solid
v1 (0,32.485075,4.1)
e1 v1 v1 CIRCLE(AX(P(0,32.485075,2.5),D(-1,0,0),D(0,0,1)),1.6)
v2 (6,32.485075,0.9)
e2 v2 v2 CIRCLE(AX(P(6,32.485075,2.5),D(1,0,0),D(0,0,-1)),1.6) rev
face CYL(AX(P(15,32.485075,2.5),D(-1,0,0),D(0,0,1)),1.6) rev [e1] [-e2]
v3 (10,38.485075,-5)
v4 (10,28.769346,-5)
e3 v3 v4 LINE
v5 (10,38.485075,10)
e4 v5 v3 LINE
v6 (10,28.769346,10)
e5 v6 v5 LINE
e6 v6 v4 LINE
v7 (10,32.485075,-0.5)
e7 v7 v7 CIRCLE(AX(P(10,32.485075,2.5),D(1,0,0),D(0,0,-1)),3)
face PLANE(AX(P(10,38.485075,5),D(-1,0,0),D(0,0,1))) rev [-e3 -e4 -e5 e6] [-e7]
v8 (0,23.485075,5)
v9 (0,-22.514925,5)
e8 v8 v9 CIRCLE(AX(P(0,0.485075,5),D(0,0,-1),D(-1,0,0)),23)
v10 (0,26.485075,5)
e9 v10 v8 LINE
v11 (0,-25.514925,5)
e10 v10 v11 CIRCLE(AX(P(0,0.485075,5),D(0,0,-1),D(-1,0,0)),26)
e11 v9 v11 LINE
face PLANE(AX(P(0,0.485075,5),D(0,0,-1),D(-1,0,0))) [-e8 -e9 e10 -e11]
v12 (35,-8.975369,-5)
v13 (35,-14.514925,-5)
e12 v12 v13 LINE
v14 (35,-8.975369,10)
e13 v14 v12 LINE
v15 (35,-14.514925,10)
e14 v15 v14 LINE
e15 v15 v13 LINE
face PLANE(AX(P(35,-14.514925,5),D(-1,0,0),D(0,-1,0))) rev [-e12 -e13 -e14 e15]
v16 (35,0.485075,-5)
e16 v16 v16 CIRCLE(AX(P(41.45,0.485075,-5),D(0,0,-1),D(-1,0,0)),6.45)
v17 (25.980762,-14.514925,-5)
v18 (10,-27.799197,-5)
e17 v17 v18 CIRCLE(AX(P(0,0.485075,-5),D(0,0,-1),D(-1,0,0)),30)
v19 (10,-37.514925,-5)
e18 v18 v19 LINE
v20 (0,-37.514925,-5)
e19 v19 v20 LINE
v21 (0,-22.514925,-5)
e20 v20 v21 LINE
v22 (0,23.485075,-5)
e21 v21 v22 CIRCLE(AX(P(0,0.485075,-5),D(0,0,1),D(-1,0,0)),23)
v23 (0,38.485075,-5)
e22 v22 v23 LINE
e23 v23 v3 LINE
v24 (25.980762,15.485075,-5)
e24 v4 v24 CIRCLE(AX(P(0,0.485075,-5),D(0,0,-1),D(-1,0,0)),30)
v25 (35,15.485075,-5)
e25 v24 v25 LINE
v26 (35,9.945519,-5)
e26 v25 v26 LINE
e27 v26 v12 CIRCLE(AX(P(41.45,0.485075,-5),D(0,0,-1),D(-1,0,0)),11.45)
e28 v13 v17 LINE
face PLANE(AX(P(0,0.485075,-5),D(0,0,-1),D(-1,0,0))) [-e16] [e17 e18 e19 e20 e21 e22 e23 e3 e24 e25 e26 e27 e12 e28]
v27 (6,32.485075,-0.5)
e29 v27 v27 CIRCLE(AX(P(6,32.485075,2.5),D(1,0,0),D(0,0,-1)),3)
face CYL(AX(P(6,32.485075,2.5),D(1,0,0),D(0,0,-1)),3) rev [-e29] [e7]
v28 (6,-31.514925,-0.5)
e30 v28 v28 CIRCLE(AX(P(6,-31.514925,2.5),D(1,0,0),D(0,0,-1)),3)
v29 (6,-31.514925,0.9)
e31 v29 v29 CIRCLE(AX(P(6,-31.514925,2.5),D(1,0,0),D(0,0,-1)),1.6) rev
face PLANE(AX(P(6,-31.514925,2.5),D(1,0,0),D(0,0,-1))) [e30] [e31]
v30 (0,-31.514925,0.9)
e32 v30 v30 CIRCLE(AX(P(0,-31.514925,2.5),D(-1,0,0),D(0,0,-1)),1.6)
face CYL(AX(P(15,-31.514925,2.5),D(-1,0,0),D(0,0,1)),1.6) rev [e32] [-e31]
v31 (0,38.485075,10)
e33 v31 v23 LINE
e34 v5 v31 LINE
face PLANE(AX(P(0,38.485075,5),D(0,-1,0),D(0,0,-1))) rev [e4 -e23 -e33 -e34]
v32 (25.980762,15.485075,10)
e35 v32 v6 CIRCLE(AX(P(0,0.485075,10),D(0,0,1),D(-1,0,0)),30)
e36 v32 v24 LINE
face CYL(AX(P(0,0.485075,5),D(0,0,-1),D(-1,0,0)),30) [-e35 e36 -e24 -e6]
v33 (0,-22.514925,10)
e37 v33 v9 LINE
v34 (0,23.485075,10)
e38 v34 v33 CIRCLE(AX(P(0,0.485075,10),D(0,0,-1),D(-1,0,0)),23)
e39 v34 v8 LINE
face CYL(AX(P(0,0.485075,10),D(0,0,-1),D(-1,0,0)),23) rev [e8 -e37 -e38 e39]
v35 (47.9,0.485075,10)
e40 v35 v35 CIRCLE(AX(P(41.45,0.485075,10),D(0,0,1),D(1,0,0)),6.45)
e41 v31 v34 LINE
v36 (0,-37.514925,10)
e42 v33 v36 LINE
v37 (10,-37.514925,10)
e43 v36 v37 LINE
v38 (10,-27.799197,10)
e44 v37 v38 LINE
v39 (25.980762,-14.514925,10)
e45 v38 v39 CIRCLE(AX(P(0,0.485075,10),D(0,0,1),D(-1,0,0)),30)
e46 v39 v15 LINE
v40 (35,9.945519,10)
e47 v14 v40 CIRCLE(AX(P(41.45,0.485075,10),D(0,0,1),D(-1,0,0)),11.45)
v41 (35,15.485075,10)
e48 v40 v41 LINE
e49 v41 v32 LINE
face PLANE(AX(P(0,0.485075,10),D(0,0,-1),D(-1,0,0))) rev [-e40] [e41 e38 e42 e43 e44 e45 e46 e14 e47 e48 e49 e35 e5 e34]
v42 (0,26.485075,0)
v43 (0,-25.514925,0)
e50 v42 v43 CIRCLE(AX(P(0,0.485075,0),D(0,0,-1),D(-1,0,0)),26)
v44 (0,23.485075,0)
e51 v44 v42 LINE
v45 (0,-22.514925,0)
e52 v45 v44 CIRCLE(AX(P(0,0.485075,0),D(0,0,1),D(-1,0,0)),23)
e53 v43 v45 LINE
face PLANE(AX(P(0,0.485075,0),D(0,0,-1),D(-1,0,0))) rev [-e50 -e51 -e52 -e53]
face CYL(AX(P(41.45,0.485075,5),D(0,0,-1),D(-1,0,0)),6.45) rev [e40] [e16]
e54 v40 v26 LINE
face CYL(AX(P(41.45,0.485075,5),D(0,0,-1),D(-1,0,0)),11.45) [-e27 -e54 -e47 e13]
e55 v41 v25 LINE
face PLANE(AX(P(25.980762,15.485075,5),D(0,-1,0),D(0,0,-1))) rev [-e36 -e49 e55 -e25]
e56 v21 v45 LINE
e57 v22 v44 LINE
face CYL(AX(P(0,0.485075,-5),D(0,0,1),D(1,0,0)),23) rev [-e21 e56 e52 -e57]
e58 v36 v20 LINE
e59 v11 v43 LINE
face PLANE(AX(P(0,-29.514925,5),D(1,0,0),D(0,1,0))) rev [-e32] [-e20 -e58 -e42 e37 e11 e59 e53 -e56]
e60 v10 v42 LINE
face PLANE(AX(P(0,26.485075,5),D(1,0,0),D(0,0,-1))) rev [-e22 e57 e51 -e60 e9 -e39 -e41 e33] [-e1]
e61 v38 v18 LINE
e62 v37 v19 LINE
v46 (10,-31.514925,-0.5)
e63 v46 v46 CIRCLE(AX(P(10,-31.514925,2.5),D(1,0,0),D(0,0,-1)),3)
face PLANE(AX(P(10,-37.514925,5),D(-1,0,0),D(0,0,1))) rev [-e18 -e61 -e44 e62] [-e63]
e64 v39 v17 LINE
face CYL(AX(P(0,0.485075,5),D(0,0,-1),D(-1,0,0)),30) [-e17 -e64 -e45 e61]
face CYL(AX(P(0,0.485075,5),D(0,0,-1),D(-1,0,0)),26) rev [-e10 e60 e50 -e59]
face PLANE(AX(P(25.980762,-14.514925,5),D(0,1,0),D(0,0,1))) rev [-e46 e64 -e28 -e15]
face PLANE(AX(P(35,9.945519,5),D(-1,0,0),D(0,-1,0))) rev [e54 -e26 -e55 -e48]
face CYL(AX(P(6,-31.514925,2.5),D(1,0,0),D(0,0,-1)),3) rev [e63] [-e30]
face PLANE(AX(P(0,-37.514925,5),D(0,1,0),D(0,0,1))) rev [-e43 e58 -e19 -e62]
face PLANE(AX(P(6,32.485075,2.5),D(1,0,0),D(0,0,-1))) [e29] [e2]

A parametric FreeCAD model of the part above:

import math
import FreeCAD as App
import Part
import Sketcher

doc = App.newDocument("Part")
body = doc.addObject("PartDesign::Body", "Body")

# Sketch on XY plane
sketch1 = body.newObject("Sketcher::SketchObject", "Sketch")
sketch1.AttachmentSupport = (doc.getObject("XY_Plane"), [""])
sketch1.MapMode = "FlatFace"
sketch1.addGeometry([
    Part.LineSegment(App.Vector(0, 38.485075, 0), App.Vector(0, 26.485075, 0)),  # 0
    Part.ArcOfCircle(Part.Circle(App.Vector(0, 0.485075, 0), App.Vector(0, 0, 1), 26), math.radians(-90), math.radians(90)),  # 1
    Part.LineSegment(App.Vector(0, -25.514925, 0), App.Vector(0, -37.514925, 0)),  # 2
    Part.LineSegment(App.Vector(0, -37.514925, 0), App.Vector(10, -37.514925, 0)),  # 3
    Part.LineSegment(App.Vector(10, -37.514925, 0), App.Vector(10, -27.799197, 0)),  # 4
    Part.ArcOfCircle(Part.Circle(App.Vector(0, 0.485075, 0), App.Vector(0, 0, 1), 30), math.radians(-70.528779), math.radians(-30)),  # 5
    Part.LineSegment(App.Vector(25.980762, -14.514925, 0), App.Vector(35, -14.514925, 0)),  # 6
    Part.LineSegment(App.Vector(35, -14.514925, 0), App.Vector(35, -8.975369, 0)),  # 7
    Part.ArcOfCircle(Part.Circle(App.Vector(41.45, 0.485075, 0), App.Vector(0, 0, 1), 11.45), math.radians(-124.285625), math.radians(124.285625)),  # 8
    Part.LineSegment(App.Vector(35, 9.945519, 0), App.Vector(35, 15.485075, 0)),  # 9
    Part.LineSegment(App.Vector(35, 15.485075, 0), App.Vector(25.980762, 15.485075, 0)),  # 10
    Part.ArcOfCircle(Part.Circle(App.Vector(0, 0.485075, 0), App.Vector(0, 0, 1), 30), math.radians(30), math.radians(70.528779)),  # 11
    Part.LineSegment(App.Vector(10, 28.769346, 0), App.Vector(10, 38.485075, 0)),  # 12
    Part.LineSegment(App.Vector(10, 38.485075, 0), App.Vector(0, 38.485075, 0)),  # 13
    Part.Circle(App.Vector(41.45, 0.485075, 0), App.Vector(0, 0, 1), 6.45),  # 14
], False)
sketch1.addConstraint([
    Sketcher.Constraint("Coincident", 0, 2, 1, 2),
    Sketcher.Constraint("Coincident", 1, 1, 2, 1),
    Sketcher.Constraint("Coincident", 2, 2, 3, 1),
    Sketcher.Constraint("Coincident", 3, 2, 4, 1),
    Sketcher.Constraint("Coincident", 4, 2, 5, 1),
    Sketcher.Constraint("Coincident", 5, 2, 6, 1),
    Sketcher.Constraint("Coincident", 6, 2, 7, 1),
    Sketcher.Constraint("Coincident", 7, 2, 8, 1),
    Sketcher.Constraint("Coincident", 8, 2, 9, 1),
    Sketcher.Constraint("Coincident", 9, 2, 10, 1),
    Sketcher.Constraint("Coincident", 10, 2, 11, 1),
    Sketcher.Constraint("Coincident", 11, 2, 12, 1),
    Sketcher.Constraint("Coincident", 12, 2, 13, 1),
    Sketcher.Constraint("Coincident", 13, 2, 0, 1),
    Sketcher.Constraint("Vertical", 0),
    Sketcher.Constraint("Vertical", 2),
    Sketcher.Constraint("Horizontal", 3),
    Sketcher.Constraint("Vertical", 4),
    Sketcher.Constraint("Horizontal", 6),
    Sketcher.Constraint("Vertical", 7),
    Sketcher.Constraint("Vertical", 9),
    Sketcher.Constraint("Horizontal", 10),
    Sketcher.Constraint("Vertical", 12),
    Sketcher.Constraint("Horizontal", 13),
    Sketcher.Constraint("Coincident", 5, 3, 1, 3),
    Sketcher.Constraint("Coincident", 11, 3, 1, 3),
    Sketcher.Constraint("Coincident", 14, 3, 8, 3),
    Sketcher.Constraint("Equal", 5, 11),
    Sketcher.Constraint("PointOnObject", 1, 3, -2),
    Sketcher.Constraint("PointOnObject", 0, 2, -2),
    Sketcher.Constraint("PointOnObject", 1, 1, -2),
    Sketcher.Constraint("Horizontal", 5, 3, 8, 3),
    Sketcher.Constraint("Vertical", 7, 2, 8, 2),
    Sketcher.Constraint("Vertical", 5, 2, 10, 2),
    Sketcher.Constraint("Vertical", 4, 2, 11, 2),
    Sketcher.Constraint("Equal", 0, 2),
    Sketcher.Constraint("Radius", 1, 26.0),
    Sketcher.Constraint("Radius", 5, 30.0),
    Sketcher.Constraint("Diameter", 14, 12.9),
    Sketcher.Constraint("DistanceX", 3, 1, 3, 2, 10.0),
    Sketcher.Constraint("DistanceY", 0, 2, 0, 1, 12.0),
    Sketcher.Constraint("Radius", 8, 11.45),
    Sketcher.Constraint("DistanceX", -1, 1, 6, 2, 35.0),
    Sketcher.Constraint("DistanceY", 5, 2, 8, 3, 15.0),
    Sketcher.Constraint("DistanceX", -1, 1, 8, 3, 41.45),
    Sketcher.Constraint("DistanceY", 7, 2, -1, 1, 8.975369),
])
pad1 = body.newObject("PartDesign::Pad", "Pad")
pad1.Profile = sketch1
pad1.Length = 5

# Sketch on XY plane
sketch2 = body.newObject("Sketcher::SketchObject", "Sketch001")
sketch2.AttachmentSupport = (doc.getObject("XY_Plane"), [""])
sketch2.MapMode = "FlatFace"
sketch2.AttachmentOffset = App.Placement(App.Vector(0, 0, 5), App.Rotation())
sketch2.addGeometry([
    Part.ArcOfCircle(Part.Circle(App.Vector(0, 0.485075, 0), App.Vector(0, 0, 1), 23), math.radians(-90), math.radians(90)),  # 0
    Part.LineSegment(App.Vector(0, -22.514925, 0), App.Vector(0, -37.514925, 0)),  # 1
    Part.LineSegment(App.Vector(0, -37.514925, 0), App.Vector(10, -37.514925, 0)),  # 2
    Part.LineSegment(App.Vector(10, -37.514925, 0), App.Vector(10, -27.799197, 0)),  # 3
    Part.ArcOfCircle(Part.Circle(App.Vector(0, 0.485075, 0), App.Vector(0, 0, 1), 30), math.radians(-70.528779), math.radians(-30)),  # 4
    Part.LineSegment(App.Vector(25.980762, -14.514925, 0), App.Vector(35, -14.514925, 0)),  # 5
    Part.LineSegment(App.Vector(35, -14.514925, 0), App.Vector(35, -8.975369, 0)),  # 6
    Part.ArcOfCircle(Part.Circle(App.Vector(41.45, 0.485075, 0), App.Vector(0, 0, 1), 11.45), math.radians(-124.285625), math.radians(124.285625)),  # 7
    Part.LineSegment(App.Vector(35, 9.945519, 0), App.Vector(35, 15.485075, 0)),  # 8
    Part.LineSegment(App.Vector(35, 15.485075, 0), App.Vector(25.980762, 15.485075, 0)),  # 9
    Part.ArcOfCircle(Part.Circle(App.Vector(0, 0.485075, 0), App.Vector(0, 0, 1), 30), math.radians(30), math.radians(70.528779)),  # 10
    Part.LineSegment(App.Vector(10, 28.769346, 0), App.Vector(10, 38.485075, 0)),  # 11
    Part.LineSegment(App.Vector(10, 38.485075, 0), App.Vector(0, 38.485075, 0)),  # 12
    Part.LineSegment(App.Vector(0, 38.485075, 0), App.Vector(0, 23.485075, 0)),  # 13
    Part.Circle(App.Vector(41.45, 0.485075, 0), App.Vector(0, 0, 1), 6.45),  # 14
], False)
sketch2.addConstraint([
    Sketcher.Constraint("Coincident", 0, 1, 1, 1),
    Sketcher.Constraint("Coincident", 1, 2, 2, 1),
    Sketcher.Constraint("Coincident", 2, 2, 3, 1),
    Sketcher.Constraint("Coincident", 3, 2, 4, 1),
    Sketcher.Constraint("Coincident", 4, 2, 5, 1),
    Sketcher.Constraint("Coincident", 5, 2, 6, 1),
    Sketcher.Constraint("Coincident", 6, 2, 7, 1),
    Sketcher.Constraint("Coincident", 7, 2, 8, 1),
    Sketcher.Constraint("Coincident", 8, 2, 9, 1),
    Sketcher.Constraint("Coincident", 9, 2, 10, 1),
    Sketcher.Constraint("Coincident", 10, 2, 11, 1),
    Sketcher.Constraint("Coincident", 11, 2, 12, 1),
    Sketcher.Constraint("Coincident", 12, 2, 13, 1),
    Sketcher.Constraint("Coincident", 13, 2, 0, 2),
    Sketcher.Constraint("Vertical", 1),
    Sketcher.Constraint("Horizontal", 2),
    Sketcher.Constraint("Vertical", 3),
    Sketcher.Constraint("Horizontal", 5),
    Sketcher.Constraint("Vertical", 6),
    Sketcher.Constraint("Vertical", 8),
    Sketcher.Constraint("Horizontal", 9),
    Sketcher.Constraint("Vertical", 11),
    Sketcher.Constraint("Horizontal", 12),
    Sketcher.Constraint("Vertical", 13),
    Sketcher.Constraint("Coincident", 4, 3, 0, 3),
    Sketcher.Constraint("Coincident", 10, 3, 0, 3),
    Sketcher.Constraint("Coincident", 14, 3, 7, 3),
    Sketcher.Constraint("Equal", 4, 10),
    Sketcher.Constraint("PointOnObject", 0, 3, -2),
    Sketcher.Constraint("PointOnObject", 0, 1, -2),
    Sketcher.Constraint("PointOnObject", 12, 2, -2),
    Sketcher.Constraint("Horizontal", 4, 3, 7, 3),
    Sketcher.Constraint("Vertical", 6, 2, 7, 2),
    Sketcher.Constraint("Vertical", 4, 2, 9, 2),
    Sketcher.Constraint("Vertical", 3, 2, 10, 2),
    Sketcher.Constraint("Equal", 3, 11),
    Sketcher.Constraint("Radius", 0, 23.0),
    Sketcher.Constraint("Radius", 4, 30.0),
    Sketcher.Constraint("Diameter", 14, 12.9),
    Sketcher.Constraint("DistanceX", 2, 1, 2, 2, 10.0),
    Sketcher.Constraint("DistanceY", 1, 2, 1, 1, 15.0),
    Sketcher.Constraint("Radius", 7, 11.45),
    Sketcher.Constraint("DistanceX", -1, 1, 5, 2, 35.0),
    Sketcher.Constraint("DistanceY", 4, 2, 7, 3, 15.0),
    Sketcher.Constraint("DistanceX", -1, 1, 7, 3, 41.45),
    Sketcher.Constraint("DistanceY", 6, 2, -1, 1, 8.975369),
])
pad2 = body.newObject("PartDesign::Pad", "Pad001")
pad2.Profile = sketch2
pad2.Length = 5

# Sketch on XY plane
sketch3 = body.newObject("Sketcher::SketchObject", "Sketch002")
sketch3.AttachmentSupport = (doc.getObject("XY_Plane"), [""])
sketch3.MapMode = "FlatFace"
sketch3.AttachmentOffset = App.Placement(App.Vector(0, 0, -5), App.Rotation())
sketch3.addGeometry([
    Part.LineSegment(App.Vector(0, -37.514925, 0), App.Vector(0, -22.514925, 0)),  # 0
    Part.ArcOfCircle(Part.Circle(App.Vector(0, 0.485075, 0), App.Vector(0, 0, 1), 23), math.radians(-90), math.radians(90)),  # 1
    Part.LineSegment(App.Vector(0, 23.485075, 0), App.Vector(0, 38.485075, 0)),  # 2
    Part.LineSegment(App.Vector(0, 38.485075, 0), App.Vector(10, 38.485075, 0)),  # 3
    Part.LineSegment(App.Vector(10, 38.485075, 0), App.Vector(10, 28.769346, 0)),  # 4
    Part.ArcOfCircle(Part.Circle(App.Vector(0, 0.485075, 0), App.Vector(0, 0, 1), 30), math.radians(30), math.radians(70.528779)),  # 5
    Part.LineSegment(App.Vector(25.980762, 15.485075, 0), App.Vector(35, 15.485075, 0)),  # 6
    Part.LineSegment(App.Vector(35, 15.485075, 0), App.Vector(35, 9.945519, 0)),  # 7
    Part.ArcOfCircle(Part.Circle(App.Vector(41.45, 0.485075, 0), App.Vector(0, 0, 1), 11.45), math.radians(-124.285625), math.radians(124.285625)),  # 8
    Part.LineSegment(App.Vector(35, -8.975369, 0), App.Vector(35, -14.514925, 0)),  # 9
    Part.LineSegment(App.Vector(35, -14.514925, 0), App.Vector(25.980762, -14.514925, 0)),  # 10
    Part.ArcOfCircle(Part.Circle(App.Vector(0, 0.485075, 0), App.Vector(0, 0, 1), 30), math.radians(-70.528779), math.radians(-30)),  # 11
    Part.LineSegment(App.Vector(10, -27.799197, 0), App.Vector(10, -37.514925, 0)),  # 12
    Part.LineSegment(App.Vector(10, -37.514925, 0), App.Vector(0, -37.514925, 0)),  # 13
    Part.Circle(App.Vector(41.45, 0.485075, 0), App.Vector(0, 0, 1), 6.45),  # 14
], False)
sketch3.addConstraint([
    Sketcher.Constraint("Coincident", 0, 2, 1, 1),
    Sketcher.Constraint("Coincident", 1, 2, 2, 1),
    Sketcher.Constraint("Coincident", 2, 2, 3, 1),
    Sketcher.Constraint("Coincident", 3, 2, 4, 1),
    Sketcher.Constraint("Coincident", 4, 2, 5, 2),
    Sketcher.Constraint("Coincident", 5, 1, 6, 1),
    Sketcher.Constraint("Coincident", 6, 2, 7, 1),
    Sketcher.Constraint("Coincident", 7, 2, 8, 2),
    Sketcher.Constraint("Coincident", 8, 1, 9, 1),
    Sketcher.Constraint("Coincident", 9, 2, 10, 1),
    Sketcher.Constraint("Coincident", 10, 2, 11, 2),
    Sketcher.Constraint("Coincident", 11, 1, 12, 1),
    Sketcher.Constraint("Coincident", 12, 2, 13, 1),
    Sketcher.Constraint("Coincident", 13, 2, 0, 1),
    Sketcher.Constraint("Vertical", 0),
    Sketcher.Constraint("Vertical", 2),
    Sketcher.Constraint("Horizontal", 3),
    Sketcher.Constraint("Vertical", 4),
    Sketcher.Constraint("Horizontal", 6),
    Sketcher.Constraint("Vertical", 7),
    Sketcher.Constraint("Vertical", 9),
    Sketcher.Constraint("Horizontal", 10),
    Sketcher.Constraint("Vertical", 12),
    Sketcher.Constraint("Horizontal", 13),
    Sketcher.Constraint("Coincident", 5, 3, 1, 3),
    Sketcher.Constraint("Coincident", 11, 3, 1, 3),
    Sketcher.Constraint("Coincident", 14, 3, 8, 3),
    Sketcher.Constraint("Equal", 5, 11),
    Sketcher.Constraint("PointOnObject", 1, 3, -2),
    Sketcher.Constraint("PointOnObject", 0, 2, -2),
    Sketcher.Constraint("PointOnObject", 1, 2, -2),
    Sketcher.Constraint("Horizontal", 5, 3, 8, 3),
    Sketcher.Constraint("Vertical", 7, 2, 8, 1),
    Sketcher.Constraint("Vertical", 5, 1, 10, 2),
    Sketcher.Constraint("Vertical", 4, 2, 11, 1),
    Sketcher.Constraint("Equal", 0, 2),
    Sketcher.Constraint("Radius", 1, 23.0),
    Sketcher.Constraint("Radius", 5, 30.0),
    Sketcher.Constraint("Diameter", 14, 12.9),
    Sketcher.Constraint("DistanceX", 3, 1, 3, 2, 10.0),
    Sketcher.Constraint("DistanceY", 0, 1, 0, 2, 15.0),
    Sketcher.Constraint("Radius", 8, 11.45),
    Sketcher.Constraint("DistanceX", -1, 1, 6, 2, 35.0),
    Sketcher.Constraint("DistanceY", 8, 3, 5, 1, 15.0),
    Sketcher.Constraint("DistanceX", -1, 1, 8, 3, 41.45),
    Sketcher.Constraint("DistanceY", -1, 1, 7, 2, 9.945519),
])
pad3 = body.newObject("PartDesign::Pad", "Pad002")
pad3.Profile = sketch3
pad3.Length = 5

# Sketch on YZ plane
sketch4 = body.newObject("Sketcher::SketchObject", "Sketch003")
sketch4.AttachmentSupport = (doc.getObject("YZ_Plane"), [""])
sketch4.MapMode = "FlatFace"
sketch4.addGeometry([
    Part.Circle(App.Vector(32.485075, 2.5, 0), App.Vector(0, 0, 1), 1.6),
    Part.Circle(App.Vector(-31.514925, 2.5, 0), App.Vector(0, 0, 1), 1.6),
], False)
sketch4.addConstraint([
    Sketcher.Constraint("Equal", 0, 1),
    Sketcher.Constraint("Horizontal", 0, 3, 1, 3),
    Sketcher.Constraint("Diameter", 0, 3.2),
    Sketcher.Constraint("DistanceX", 1, 3, 0, 3, 64.0),
    Sketcher.Constraint("DistanceY", -1, 1, 0, 3, 2.5),
    Sketcher.Constraint("DistanceX", -1, 1, 0, 3, 32.485075),
])
pocket1 = body.newObject("PartDesign::Pocket", "Pocket")
pocket1.Profile = sketch4
pocket1.Length = 15
pocket1.Reversed = True

# Sketch on YZ plane
sketch5 = body.newObject("Sketcher::SketchObject", "Sketch004")
sketch5.AttachmentSupport = (doc.getObject("YZ_Plane"), [""])
sketch5.MapMode = "FlatFace"
sketch5.AttachmentOffset = App.Placement(App.Vector(0, 0, 10), App.Rotation())
sketch5.addGeometry([
    Part.Circle(App.Vector(-31.514925, 2.5, 0), App.Vector(0, 0, 1), 3),
    Part.Circle(App.Vector(32.485075, 2.5, 0), App.Vector(0, 0, 1), 3),
], False)
sketch5.addConstraint([
    Sketcher.Constraint("Equal", 0, 1),
    Sketcher.Constraint("Horizontal", 0, 3, 1, 3),
    Sketcher.Constraint("Diameter", 0, 6.0),
    Sketcher.Constraint("DistanceX", 0, 3, 1, 3, 64.0),
    Sketcher.Constraint("DistanceY", -1, 1, 0, 3, 2.5),
    Sketcher.Constraint("DistanceX", 0, 3, -1, 1, 31.514925),
])
pocket2 = body.newObject("PartDesign::Pocket", "Pocket001")
pocket2.Profile = sketch5
pocket2.Length = 4

doc.recompute()
